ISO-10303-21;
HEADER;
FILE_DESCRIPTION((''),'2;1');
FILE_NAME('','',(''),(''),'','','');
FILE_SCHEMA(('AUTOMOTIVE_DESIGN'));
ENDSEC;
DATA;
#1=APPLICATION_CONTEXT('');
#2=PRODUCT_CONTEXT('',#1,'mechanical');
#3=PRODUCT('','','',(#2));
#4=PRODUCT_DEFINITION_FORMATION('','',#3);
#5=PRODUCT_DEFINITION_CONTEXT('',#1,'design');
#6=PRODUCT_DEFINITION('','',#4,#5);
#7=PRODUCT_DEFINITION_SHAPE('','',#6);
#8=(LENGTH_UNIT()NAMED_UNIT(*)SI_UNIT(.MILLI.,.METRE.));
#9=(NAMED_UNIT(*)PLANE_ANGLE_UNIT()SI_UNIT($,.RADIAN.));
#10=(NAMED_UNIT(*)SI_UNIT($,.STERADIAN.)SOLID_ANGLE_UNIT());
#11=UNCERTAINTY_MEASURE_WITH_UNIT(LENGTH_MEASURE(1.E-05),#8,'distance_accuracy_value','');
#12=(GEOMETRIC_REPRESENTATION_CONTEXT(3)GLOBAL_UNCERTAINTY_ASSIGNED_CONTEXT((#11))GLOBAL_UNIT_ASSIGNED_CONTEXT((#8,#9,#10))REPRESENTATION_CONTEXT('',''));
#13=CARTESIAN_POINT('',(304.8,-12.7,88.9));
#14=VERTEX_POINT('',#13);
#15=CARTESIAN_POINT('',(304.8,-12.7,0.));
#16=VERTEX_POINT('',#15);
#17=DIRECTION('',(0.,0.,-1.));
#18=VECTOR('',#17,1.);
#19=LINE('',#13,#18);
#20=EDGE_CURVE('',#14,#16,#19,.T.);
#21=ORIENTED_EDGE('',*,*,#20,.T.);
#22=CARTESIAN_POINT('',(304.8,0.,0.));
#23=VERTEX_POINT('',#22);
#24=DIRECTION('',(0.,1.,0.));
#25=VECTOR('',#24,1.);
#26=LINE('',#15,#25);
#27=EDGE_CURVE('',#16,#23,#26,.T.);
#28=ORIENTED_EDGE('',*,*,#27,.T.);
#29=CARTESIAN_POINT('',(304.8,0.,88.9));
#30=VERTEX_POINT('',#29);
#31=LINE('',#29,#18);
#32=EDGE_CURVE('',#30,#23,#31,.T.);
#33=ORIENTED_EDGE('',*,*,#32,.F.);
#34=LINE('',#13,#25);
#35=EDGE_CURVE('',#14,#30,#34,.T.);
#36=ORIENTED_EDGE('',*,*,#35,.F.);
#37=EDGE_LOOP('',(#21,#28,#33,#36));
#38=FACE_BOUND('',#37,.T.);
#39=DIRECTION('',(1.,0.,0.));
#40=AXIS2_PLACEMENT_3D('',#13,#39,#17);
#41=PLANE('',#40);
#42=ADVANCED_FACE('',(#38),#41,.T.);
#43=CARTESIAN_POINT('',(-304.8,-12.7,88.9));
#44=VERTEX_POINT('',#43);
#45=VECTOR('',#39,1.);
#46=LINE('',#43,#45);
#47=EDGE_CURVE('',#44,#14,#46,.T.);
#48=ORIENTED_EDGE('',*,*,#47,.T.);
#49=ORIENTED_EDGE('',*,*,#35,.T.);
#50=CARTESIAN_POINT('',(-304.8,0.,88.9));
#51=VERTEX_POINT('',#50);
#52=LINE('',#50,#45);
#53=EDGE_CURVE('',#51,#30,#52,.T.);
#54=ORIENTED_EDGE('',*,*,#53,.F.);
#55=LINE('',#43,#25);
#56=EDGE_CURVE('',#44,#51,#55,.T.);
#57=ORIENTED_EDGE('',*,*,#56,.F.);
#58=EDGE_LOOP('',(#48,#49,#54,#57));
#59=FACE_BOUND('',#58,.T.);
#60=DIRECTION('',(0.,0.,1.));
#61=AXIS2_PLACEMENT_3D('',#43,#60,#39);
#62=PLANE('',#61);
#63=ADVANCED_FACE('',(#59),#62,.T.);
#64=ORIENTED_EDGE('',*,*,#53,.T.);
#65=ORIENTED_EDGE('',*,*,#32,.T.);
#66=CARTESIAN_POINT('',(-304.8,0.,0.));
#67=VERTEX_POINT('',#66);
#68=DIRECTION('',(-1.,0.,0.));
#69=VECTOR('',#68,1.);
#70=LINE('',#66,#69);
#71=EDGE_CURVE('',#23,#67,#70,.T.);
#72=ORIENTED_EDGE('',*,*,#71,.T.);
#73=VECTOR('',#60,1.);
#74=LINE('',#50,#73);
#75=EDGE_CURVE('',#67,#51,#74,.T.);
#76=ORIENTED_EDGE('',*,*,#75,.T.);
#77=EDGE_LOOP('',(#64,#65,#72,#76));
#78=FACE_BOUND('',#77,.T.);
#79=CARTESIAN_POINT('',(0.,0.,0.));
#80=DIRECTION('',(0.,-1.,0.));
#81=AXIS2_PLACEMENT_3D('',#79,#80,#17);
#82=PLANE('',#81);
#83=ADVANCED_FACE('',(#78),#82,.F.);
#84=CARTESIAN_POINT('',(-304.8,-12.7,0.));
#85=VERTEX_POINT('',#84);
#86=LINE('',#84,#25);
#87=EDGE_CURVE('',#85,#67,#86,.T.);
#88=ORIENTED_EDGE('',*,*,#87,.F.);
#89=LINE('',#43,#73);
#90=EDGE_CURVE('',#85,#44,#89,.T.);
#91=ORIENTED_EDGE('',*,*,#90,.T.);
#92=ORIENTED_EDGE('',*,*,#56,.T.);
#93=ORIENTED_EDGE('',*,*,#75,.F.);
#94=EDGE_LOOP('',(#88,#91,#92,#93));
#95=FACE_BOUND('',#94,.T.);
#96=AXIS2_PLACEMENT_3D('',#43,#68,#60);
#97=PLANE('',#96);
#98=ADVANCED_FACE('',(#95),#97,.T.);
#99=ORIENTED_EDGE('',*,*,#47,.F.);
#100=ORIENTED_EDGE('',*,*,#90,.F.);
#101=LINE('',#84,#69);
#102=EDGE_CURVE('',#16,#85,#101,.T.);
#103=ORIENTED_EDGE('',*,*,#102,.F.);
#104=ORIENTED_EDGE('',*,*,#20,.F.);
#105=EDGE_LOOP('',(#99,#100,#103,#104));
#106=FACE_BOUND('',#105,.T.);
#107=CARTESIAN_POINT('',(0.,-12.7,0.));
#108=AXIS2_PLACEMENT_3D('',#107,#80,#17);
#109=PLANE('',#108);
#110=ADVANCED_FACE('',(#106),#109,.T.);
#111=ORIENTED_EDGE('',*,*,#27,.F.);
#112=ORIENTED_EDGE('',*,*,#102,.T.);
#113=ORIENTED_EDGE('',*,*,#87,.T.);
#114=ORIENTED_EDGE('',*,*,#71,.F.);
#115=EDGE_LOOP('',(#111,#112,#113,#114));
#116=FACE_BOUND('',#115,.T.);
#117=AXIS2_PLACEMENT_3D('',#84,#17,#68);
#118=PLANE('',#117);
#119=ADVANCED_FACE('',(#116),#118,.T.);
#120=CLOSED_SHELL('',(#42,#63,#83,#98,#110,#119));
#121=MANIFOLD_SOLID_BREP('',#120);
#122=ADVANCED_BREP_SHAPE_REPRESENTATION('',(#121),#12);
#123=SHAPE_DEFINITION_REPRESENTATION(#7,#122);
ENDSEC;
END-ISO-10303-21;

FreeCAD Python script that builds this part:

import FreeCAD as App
import Part
import Sketcher
Q = App.Units.Quantity


def add_polygon(sketch, points):
    """Adds a closed chain of lines whose ends are joined by coincident constraints."""
    first, n = sketch.GeometryCount, len(points)
    for a, b in zip(points, points[1:] + points[:1]):
        sketch.addGeometry(Part.LineSegment(App.Vector(*a, 0), App.Vector(*b, 0)), False)
    for i in range(n):
        sketch.addConstraint(Sketcher.Constraint("Coincident", first + i, 2, first + (i + 1) % n, 1))

doc = App.newDocument("Part")
body = doc.addObject("PartDesign::Body", "Body")

sketch1 = doc.addObject("Sketcher::SketchObject", "Sketch")
body.addObject(sketch1)
sketch1.AttachmentSupport = (doc.XZ_Plane, [""])
sketch1.MapMode = "FlatFace"
add_polygon(sketch1, [(-304.8, 0), (-304.8, 88.9), (304.8, 88.9), (304.8, 0)])
sketch1.addConstraint([
    Sketcher.Constraint("Vertical", 0),
    Sketcher.Constraint("Horizontal", 1),
    Sketcher.Constraint("Vertical", 2),
    Sketcher.Constraint("Horizontal", 3),
    Sketcher.Constraint("Symmetric", 2, 2, 3, 2, -1, 1),
    Sketcher.Constraint("DistanceX", 1, 1, 1, 2, Q("24 in")),
    Sketcher.Constraint("DistanceY", 0, 1, 0, 2, Q("3.5 in")),
])
pad1 = doc.addObject("PartDesign::Pad", "Pad")
body.addObject(pad1)
pad1.Profile = sketch1
pad1.Length = Q("0.5 in")

doc.recompute()
